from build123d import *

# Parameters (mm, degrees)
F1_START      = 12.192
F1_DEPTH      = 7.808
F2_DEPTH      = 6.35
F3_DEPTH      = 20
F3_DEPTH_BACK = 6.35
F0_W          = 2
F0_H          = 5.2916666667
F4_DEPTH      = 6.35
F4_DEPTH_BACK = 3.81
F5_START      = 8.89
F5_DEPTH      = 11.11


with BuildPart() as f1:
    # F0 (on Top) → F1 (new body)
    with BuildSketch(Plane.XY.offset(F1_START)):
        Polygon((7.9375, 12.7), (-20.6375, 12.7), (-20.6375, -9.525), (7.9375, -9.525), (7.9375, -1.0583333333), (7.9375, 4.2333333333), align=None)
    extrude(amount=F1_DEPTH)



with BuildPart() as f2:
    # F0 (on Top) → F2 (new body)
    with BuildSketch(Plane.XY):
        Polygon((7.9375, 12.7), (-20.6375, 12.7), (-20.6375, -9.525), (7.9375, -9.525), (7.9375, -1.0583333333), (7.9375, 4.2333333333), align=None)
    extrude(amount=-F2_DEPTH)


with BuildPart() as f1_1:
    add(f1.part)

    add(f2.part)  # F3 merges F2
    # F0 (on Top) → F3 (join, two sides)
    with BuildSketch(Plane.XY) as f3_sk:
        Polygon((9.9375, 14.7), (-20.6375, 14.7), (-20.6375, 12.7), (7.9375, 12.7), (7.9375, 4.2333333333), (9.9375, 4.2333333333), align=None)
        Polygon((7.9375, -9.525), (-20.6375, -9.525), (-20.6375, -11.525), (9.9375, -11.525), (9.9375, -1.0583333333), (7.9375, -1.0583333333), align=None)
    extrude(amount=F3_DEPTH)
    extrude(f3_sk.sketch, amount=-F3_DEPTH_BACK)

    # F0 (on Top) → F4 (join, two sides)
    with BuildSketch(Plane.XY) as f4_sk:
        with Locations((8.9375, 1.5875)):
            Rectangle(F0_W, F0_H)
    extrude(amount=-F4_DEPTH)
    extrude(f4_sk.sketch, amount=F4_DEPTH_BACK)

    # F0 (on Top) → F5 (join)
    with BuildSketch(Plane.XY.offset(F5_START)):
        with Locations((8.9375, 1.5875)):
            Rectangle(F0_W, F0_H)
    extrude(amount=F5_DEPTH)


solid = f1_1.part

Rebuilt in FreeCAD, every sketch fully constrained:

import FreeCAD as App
import Part
import Sketcher

V = App.Vector
Q = App.Units.Quantity

doc = App.newDocument("Part")
body = doc.addObject("PartDesign::Body", "Body")

sketch1 = body.newObject("Sketcher::SketchObject", "Sketch")
sketch1.AttachmentSupport = (doc.getObject("XY_Plane"), [""])
sketch1.MapMode = "FlatFace"
sketch1.AttachmentOffset = App.Placement(V(0, 0, 0.48 * 25.4), App.Rotation())
sketch1.addGeometry([
    Part.LineSegment(V(8, 13, 0), V(-21, 13, 0)),
    Part.LineSegment(V(-21, 13, 0), V(-21, -10, 0)),
    Part.LineSegment(V(-21, -10, 0), V(8, -10, 0)),
    Part.LineSegment(V(8, -10, 0), V(8, 13, 0)),
], False)
sketch1.addConstraint([
    Sketcher.Constraint("Coincident", 0, 2, 1, 1),
    Sketcher.Constraint("Coincident", 1, 2, 2, 1),
    Sketcher.Constraint("Coincident", 2, 2, 3, 1),
    Sketcher.Constraint("Coincident", 3, 2, 0, 1),
    Sketcher.Constraint("Horizontal", 0),
    Sketcher.Constraint("Vertical", 1),
    Sketcher.Constraint("Horizontal", 2),
    Sketcher.Constraint("Vertical", 3),
    Sketcher.Constraint("DistanceY", -1, 1, 0, 2, Q("0.5 in")),
    Sketcher.Constraint("DistanceX", 0, 2, 0, 1, Q("1.125 in")),
    Sketcher.Constraint("DistanceY", 1, 2, 1, 1, Q("0.875 in")),
    Sketcher.Constraint("DistanceX", 0, 2, -1, 1, Q("0.8125 in")),
])
pad1 = body.newObject("PartDesign::Pad", "Pad")
pad1.Profile = sketch1
pad1.Length = 7.808
body2 = doc.addObject("PartDesign::Body", "Body001")

sketch2 = body2.newObject("Sketcher::SketchObject", "Sketch001")
sketch2.AttachmentSupport = (doc.getObject("XY_Plane001"), [""])
sketch2.MapMode = "FlatFace"
sketch2.addGeometry([
    Part.LineSegment(V(8, 13, 0), V(-21, 13, 0)),
    Part.LineSegment(V(-21, 13, 0), V(-21, -10, 0)),
    Part.LineSegment(V(-21, -10, 0), V(8, -10, 0)),
    Part.LineSegment(V(8, -10, 0), V(8, 13, 0)),
], False)
sketch2.addConstraint([
    Sketcher.Constraint("Coincident", 0, 2, 1, 1),
    Sketcher.Constraint("Coincident", 1, 2, 2, 1),
    Sketcher.Constraint("Coincident", 2, 2, 3, 1),
    Sketcher.Constraint("Coincident", 3, 2, 0, 1),
    Sketcher.Constraint("Horizontal", 0),
    Sketcher.Constraint("Vertical", 1),
    Sketcher.Constraint("Horizontal", 2),
    Sketcher.Constraint("Vertical", 3),
    Sketcher.Constraint("DistanceY", -1, 1, 0, 2, Q("0.5 in")),
    Sketcher.Constraint("DistanceX", 0, 2, 0, 1, Q("1.125 in")),
    Sketcher.Constraint("DistanceY", 1, 2, 1, 1, Q("0.875 in")),
    Sketcher.Constraint("DistanceX", 0, 2, -1, 1, Q("0.8125 in")),
])
pad2 = body2.newObject("PartDesign::Pad", "Pad001")
pad2.Profile = sketch2
pad2.Length = Q("0.25 in")
pad2.Reversed = True
body.AllowCompound = True
doc.recompute()

boolean = body.newObject("PartDesign::Boolean", "Boolean")
boolean.Type = "Fuse"
boolean.addObjects([body2])

sketch3 = body.newObject("Sketcher::SketchObject", "Sketch002")
sketch3.AttachmentSupport = (doc.getObject("XY_Plane"), [""])
sketch3.MapMode = "FlatFace"
sketch3.addGeometry([
    Part.LineSegment(V(9.9, 14.7, 0), V(-20.6, 14.7, 0)),
    Part.LineSegment(V(-20.6, 14.7, 0), V(-20.6, 12.7, 0)),
    Part.LineSegment(V(-20.6, 12.7, 0), V(7.9, 12.7, 0)),
    Part.LineSegment(V(7.9, 12.7, 0), V(7.9, 4.2, 0)),
    Part.LineSegment(V(7.9, 4.2, 0), V(9.9, 4.2, 0)),
    Part.LineSegment(V(9.9, 4.2, 0), V(9.9, 14.7, 0)),
    Part.LineSegment(V(7.9, -9.5, 0), V(-20.6, -9.5, 0)),
    Part.LineSegment(V(-20.6, -9.5, 0), V(-20.6, -11.5, 0)),
    Part.LineSegment(V(-20.6, -11.5, 0), V(9.9, -11.5, 0)),
    Part.LineSegment(V(9.9, -11.5, 0), V(9.9, -1.1, 0)),
    Part.LineSegment(V(9.9, -1.1, 0), V(7.9, -1.1, 0)),
    Part.LineSegment(V(7.9, -1.1, 0), V(7.9, -9.5, 0)),
], False)
sketch3.addConstraint([
    Sketcher.Constraint("Coincident", 0, 2, 1, 1),
    Sketcher.Constraint("Coincident", 1, 2, 2, 1),
    Sketcher.Constraint("Coincident", 2, 2, 3, 1),
    Sketcher.Constraint("Coincident", 3, 2, 4, 1),
    Sketcher.Constraint("Coincident", 4, 2, 5, 1),
    Sketcher.Constraint("Coincident", 5, 2, 0, 1),
    Sketcher.Constraint("Coincident", 6, 2, 7, 1),
    Sketcher.Constraint("Coincident", 7, 2, 8, 1),
    Sketcher.Constraint("Coincident", 8, 2, 9, 1),
    Sketcher.Constraint("Coincident", 9, 2, 10, 1),
    Sketcher.Constraint("Coincident", 10, 2, 11, 1),
    Sketcher.Constraint("Coincident", 11, 2, 6, 1),
    Sketcher.Constraint("Horizontal", 0),
    Sketcher.Constraint("Vertical", 1),
    Sketcher.Constraint("Horizontal", 2),
    Sketcher.Constraint("Vertical", 3),
    Sketcher.Constraint("Horizontal", 4),
    Sketcher.Constraint("Vertical", 5),
    Sketcher.Constraint("Horizontal", 6),
    Sketcher.Constraint("Vertical", 7),
    Sketcher.Constraint("Horizontal", 8),
    Sketcher.Constraint("Vertical", 9),
    Sketcher.Constraint("Horizontal", 10),
    Sketcher.Constraint("Vertical", 11),
    Sketcher.Constraint("Vertical", 1, 2, 6, 2),
    Sketcher.Constraint("Vertical", 5, 2, 8, 2),
    Sketcher.Constraint("Vertical", 3, 2, 10, 2),
    Sketcher.Constraint("Equal", 10, 1),
    Sketcher.Constraint("Equal", 1, 7),
    Sketcher.Constraint("Equal", 5, 9),
    Sketcher.Constraint("DistanceY", -1, 1, 1, 2, Q("0.5 in")),
    Sketcher.Constraint("DistanceX", 2, 1, 2, 2, Q("1.125 in")),
    Sketcher.Constraint("DistanceX", 0, 2, -1, 1, Q("0.8125 in")),
    Sketcher.Constraint("DistanceY", 6, 2, -1, 1, Q("0.375 in")),
    Sketcher.Constraint("DistanceX", 0, 2, 0, 1, Q("30.575 mm")),
    Sketcher.Constraint("DistanceY", 3, 2, 3, 1, Q("8.466667 mm")),
])
pad3 = body.newObject("PartDesign::Pad", "Pad002")
pad3.Profile = sketch3
pad3.Type = "TwoLengths"
pad3.Length = 20
pad3.Length2 = Q("0.25 in")

sketch4 = body.newObject("Sketcher::SketchObject", "Sketch003")
sketch4.AttachmentSupport = (doc.getObject("XY_Plane"), [""])
sketch4.MapMode = "FlatFace"
sketch4.addGeometry([
    Part.LineSegment(V(7.9, 4.2, 0), V(7.9, -1.1, 0)),
    Part.LineSegment(V(7.9, -1.1, 0), V(9.9, -1.1, 0)),
    Part.LineSegment(V(9.9, -1.1, 0), V(9.9, 4.2, 0)),
    Part.LineSegment(V(9.9, 4.2, 0), V(7.9, 4.2, 0)),
], False)
sketch4.addConstraint([
    Sketcher.Constraint("Coincident", 0, 2, 1, 1),
    Sketcher.Constraint("Coincident", 1, 2, 2, 1),
    Sketcher.Constraint("Coincident", 2, 2, 3, 1),
    Sketcher.Constraint("Coincident", 3, 2, 0, 1),
    Sketcher.Constraint("Vertical", 0),
    Sketcher.Constraint("Horizontal", 1),
    Sketcher.Constraint("Vertical", 2),
    Sketcher.Constraint("Horizontal", 3),
    Sketcher.Constraint("DistanceX", -1, 1, 0, 2, Q("0.3125 in")),
    Sketcher.Constraint("DistanceX", 1, 1, 1, 2, Q("2 mm")),
    Sketcher.Constraint("DistanceY", 0, 2, 0, 1, Q("5.291667 mm")),
    Sketcher.Constraint("DistanceY", 0, 2, -1, 1, Q("1.058333 mm")),
])
pad4 = body.newObject("PartDesign::Pad", "Pad003")
pad4.Profile = sketch4
pad4.Type = "TwoLengths"
pad4.Length = Q("0.25 in")
pad4.Length2 = Q("0.15 in")
pad4.Reversed = True

sketch5 = body.newObject("Sketcher::SketchObject", "Sketch004")
sketch5.AttachmentSupport = (doc.getObject("XY_Plane"), [""])
sketch5.MapMode = "FlatFace"
sketch5.AttachmentOffset = App.Placement(V(0, 0, 0.35 * 25.4), App.Rotation())
sketch5.addGeometry([
    Part.LineSegment(V(7.9, 4.2, 0), V(7.9, -1.1, 0)),
    Part.LineSegment(V(7.9, -1.1, 0), V(9.9, -1.1, 0)),
    Part.LineSegment(V(9.9, -1.1, 0), V(9.9, 4.2, 0)),
    Part.LineSegment(V(9.9, 4.2, 0), V(7.9, 4.2, 0)),
], False)
sketch5.addConstraint([
    Sketcher.Constraint("Coincident", 0, 2, 1, 1),
    Sketcher.Constraint("Coincident", 1, 2, 2, 1),
    Sketcher.Constraint("Coincident", 2, 2, 3, 1),
    Sketcher.Constraint("Coincident", 3, 2, 0, 1),
    Sketcher.Constraint("Vertical", 0),
    Sketcher.Constraint("Horizontal", 1),
    Sketcher.Constraint("Vertical", 2),
    Sketcher.Constraint("Horizontal", 3),
    Sketcher.Constraint("DistanceX", -1, 1, 0, 2, Q("0.3125 in")),
    Sketcher.Constraint("DistanceX", 1, 1, 1, 2, Q("2 mm")),
    Sketcher.Constraint("DistanceY", 0, 2, 0, 1, Q("5.291667 mm")),
    Sketcher.Constraint("DistanceY", 0, 2, -1, 1, Q("1.058333 mm")),
])
pad5 = body.newObject("PartDesign::Pad", "Pad004")
pad5.Profile = sketch5
pad5.Length = 11.11

doc.recompute()
